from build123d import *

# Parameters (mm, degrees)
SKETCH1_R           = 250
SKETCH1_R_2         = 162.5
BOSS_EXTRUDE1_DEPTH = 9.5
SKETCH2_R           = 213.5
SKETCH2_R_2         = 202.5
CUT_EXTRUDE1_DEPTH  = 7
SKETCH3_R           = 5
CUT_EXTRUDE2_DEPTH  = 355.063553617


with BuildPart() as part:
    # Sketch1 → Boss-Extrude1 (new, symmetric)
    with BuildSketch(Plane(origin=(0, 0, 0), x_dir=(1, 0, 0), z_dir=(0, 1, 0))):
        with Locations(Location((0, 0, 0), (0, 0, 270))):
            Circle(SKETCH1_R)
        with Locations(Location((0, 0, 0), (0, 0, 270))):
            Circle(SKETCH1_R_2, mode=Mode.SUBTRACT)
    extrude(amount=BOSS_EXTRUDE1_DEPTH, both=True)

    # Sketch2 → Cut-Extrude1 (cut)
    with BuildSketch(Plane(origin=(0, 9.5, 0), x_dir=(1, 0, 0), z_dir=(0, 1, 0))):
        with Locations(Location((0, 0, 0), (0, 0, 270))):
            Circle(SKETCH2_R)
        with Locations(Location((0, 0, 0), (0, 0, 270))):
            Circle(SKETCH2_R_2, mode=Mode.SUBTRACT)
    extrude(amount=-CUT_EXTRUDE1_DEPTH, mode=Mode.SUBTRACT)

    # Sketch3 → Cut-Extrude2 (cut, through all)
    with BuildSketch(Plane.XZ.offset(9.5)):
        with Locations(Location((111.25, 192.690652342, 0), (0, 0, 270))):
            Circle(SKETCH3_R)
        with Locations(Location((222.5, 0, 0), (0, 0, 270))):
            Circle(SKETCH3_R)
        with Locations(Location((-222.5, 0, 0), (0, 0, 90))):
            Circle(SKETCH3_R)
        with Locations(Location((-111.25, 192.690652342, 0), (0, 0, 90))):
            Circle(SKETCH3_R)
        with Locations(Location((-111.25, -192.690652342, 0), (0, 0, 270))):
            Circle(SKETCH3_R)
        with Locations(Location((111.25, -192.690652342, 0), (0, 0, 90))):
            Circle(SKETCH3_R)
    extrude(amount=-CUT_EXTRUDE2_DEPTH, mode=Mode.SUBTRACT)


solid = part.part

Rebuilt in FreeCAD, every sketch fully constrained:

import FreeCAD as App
import Part
import Sketcher

V = App.Vector

doc = App.newDocument("Part")
body = doc.addObject("PartDesign::Body", "Body")

sketch1 = doc.addObject("Sketcher::SketchObject", "Sketch")
body.addObject(sketch1)
sketch1.AttachmentSupport = (doc.XZ_Plane, [""])
sketch1.MapMode = "FlatFace"
sketch1.addGeometry(Part.Circle(V(0, 0, 0), V(0, 0, 1), 250), False)
sketch1.addGeometry(Part.Circle(V(0, 0, 0), V(0, 0, 1), 162), False)
sketch1.addConstraint(Sketcher.Constraint("Coincident", 0, 3, -1, 1))
sketch1.addConstraint(Sketcher.Constraint("Coincident", 1, 3, -1, 1))
sketch1.addConstraint(Sketcher.Constraint("Diameter", 0, 500.0))
sketch1.addConstraint(Sketcher.Constraint("Diameter", 1, 325.0))
pad1 = doc.addObject("PartDesign::Pad", "Pad")
body.addObject(pad1)
pad1.Profile = sketch1
pad1.Length = 19
pad1.Midplane = True

sketch2 = doc.addObject("Sketcher::SketchObject", "Sketch001")
body.addObject(sketch2)
sketch2.AttachmentSupport = (doc.XZ_Plane, [""])
sketch2.MapMode = "FlatFace"
sketch2.AttachmentOffset = App.Placement(V(0, 0, -9.5), App.Rotation())
sketch2.addGeometry(Part.Circle(V(0, 0, 0), V(0, 0, 1), 214), False)
sketch2.addGeometry(Part.Circle(V(0, 0, 0), V(0, 0, 1), 202), False)
sketch2.addConstraint(Sketcher.Constraint("Coincident", 0, 3, -1, 1))
sketch2.addConstraint(Sketcher.Constraint("Coincident", 1, 3, -1, 1))
sketch2.addConstraint(Sketcher.Constraint("Diameter", 0, 427.0))
sketch2.addConstraint(Sketcher.Constraint("Diameter", 1, 405.0))
pocket1 = doc.addObject("PartDesign::Pocket", "Pocket")
body.addObject(pocket1)
pocket1.Profile = sketch2
pocket1.Length = 7
pocket1.Reversed = True

sketch3 = doc.addObject("Sketcher::SketchObject", "Sketch002")
body.addObject(sketch3)
sketch3.AttachmentSupport = (doc.XZ_Plane, [""])
sketch3.MapMode = "FlatFace"
sketch3.AttachmentOffset = App.Placement(V(0, 0, 9.5), App.Rotation())
sketch3.addGeometry(Part.Circle(V(111, 193, 0), V(0, 0, 1), 5), False)
sketch3.addGeometry(Part.Circle(V(222, 0, 0), V(0, 0, 1), 5), False)
sketch3.addGeometry(Part.Circle(V(-222, 0, 0), V(0, 0, 1), 5), False)
sketch3.addGeometry(Part.Circle(V(-111, 193, 0), V(0, 0, 1), 5), False)
sketch3.addGeometry(Part.Circle(V(-111, -193, 0), V(0, 0, 1), 5), False)
sketch3.addGeometry(Part.Circle(V(111, -193, 0), V(0, 0, 1), 5), False)
sketch3.addConstraint(Sketcher.Constraint("Equal", 0, 1))
sketch3.addConstraint(Sketcher.Constraint("Equal", 1, 2))
sketch3.addConstraint(Sketcher.Constraint("Equal", 2, 3))
sketch3.addConstraint(Sketcher.Constraint("Equal", 3, 4))
sketch3.addConstraint(Sketcher.Constraint("Equal", 4, 5))
sketch3.addConstraint(Sketcher.Constraint("Symmetric", 1, 3, 2, 3, -1, 1))
sketch3.addConstraint(Sketcher.Constraint("Symmetric", 0, 3, 4, 3, -1, 1))
sketch3.addConstraint(Sketcher.Constraint("Symmetric", 3, 3, 5, 3, -1, 1))
sketch3.addConstraint(Sketcher.Constraint("Symmetric", 0, 3, 3, 3, -2))
sketch3.addConstraint(Sketcher.Constraint("PointOnObject", 1, 3, -1))
sketch3.addConstraint(Sketcher.Constraint("Diameter", 0, 10.0))
sketch3.addConstraint(Sketcher.Constraint("DistanceX", 2, 3, 1, 3, 445.0))
sketch3.addConstraint(Sketcher.Constraint("DistanceX", 3, 3, 0, 3, 222.5))
sketch3.addConstraint(Sketcher.Constraint("DistanceY", -1, 1, 0, 3, 192.690652))
pocket2 = doc.addObject("PartDesign::Pocket", "Pocket001")
body.addObject(pocket2)
pocket2.Profile = sketch3
pocket2.Type = "ThroughAll"

doc.recompute()
